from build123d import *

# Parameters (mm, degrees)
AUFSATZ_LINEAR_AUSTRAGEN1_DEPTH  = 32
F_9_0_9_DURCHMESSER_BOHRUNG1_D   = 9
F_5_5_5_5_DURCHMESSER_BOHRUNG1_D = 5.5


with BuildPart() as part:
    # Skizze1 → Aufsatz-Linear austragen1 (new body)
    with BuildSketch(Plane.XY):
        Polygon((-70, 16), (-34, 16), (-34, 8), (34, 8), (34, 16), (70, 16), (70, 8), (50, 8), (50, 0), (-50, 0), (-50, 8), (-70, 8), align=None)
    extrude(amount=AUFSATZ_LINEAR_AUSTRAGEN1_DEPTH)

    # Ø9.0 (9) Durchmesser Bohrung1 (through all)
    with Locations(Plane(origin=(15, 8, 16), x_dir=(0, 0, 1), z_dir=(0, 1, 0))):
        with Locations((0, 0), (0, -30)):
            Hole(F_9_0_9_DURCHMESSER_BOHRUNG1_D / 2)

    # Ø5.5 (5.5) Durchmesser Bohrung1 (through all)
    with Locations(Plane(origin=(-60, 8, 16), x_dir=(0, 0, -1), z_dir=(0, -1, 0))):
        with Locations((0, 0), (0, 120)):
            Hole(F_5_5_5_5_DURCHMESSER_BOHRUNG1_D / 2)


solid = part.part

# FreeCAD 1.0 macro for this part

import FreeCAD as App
import Part
import Sketcher
from FreeCAD import Vector

doc = App.newDocument("Part")
body = doc.addObject("PartDesign::Body", "Body")

# Sketch on XY plane
sketch1 = doc.addObject("Sketcher::SketchObject", "Sketch")
body.addObject(sketch1)
sketch1.AttachmentSupport = (doc.XY_Plane, [""])
sketch1.MapMode = "FlatFace"
sketch1.addGeometry([
    Part.LineSegment(Vector(-34, 16, 0), Vector(-70, 16, 0)),  # 0
    Part.LineSegment(Vector(-70, 16, 0), Vector(-70, 8, 0)),  # 1
    Part.LineSegment(Vector(-70, 8, 0), Vector(-50, 8, 0)),  # 2
    Part.LineSegment(Vector(-50, 8, 0), Vector(-50, 0, 0)),  # 3
    Part.LineSegment(Vector(-50, 0, 0), Vector(50, 0, 0)),  # 4
    Part.LineSegment(Vector(50, 0, 0), Vector(50, 8, 0)),  # 5
    Part.LineSegment(Vector(50, 8, 0), Vector(70, 8, 0)),  # 6
    Part.LineSegment(Vector(70, 8, 0), Vector(70, 16, 0)),  # 7
    Part.LineSegment(Vector(70, 16, 0), Vector(34, 16, 0)),  # 8
    Part.LineSegment(Vector(34, 16, 0), Vector(34, 8, 0)),  # 9
    Part.LineSegment(Vector(34, 8, 0), Vector(-34, 8, 0)),  # 10
    Part.LineSegment(Vector(-34, 8, 0), Vector(-34, 16, 0)),  # 11
], False)
sketch1.addConstraint([
    Sketcher.Constraint("Coincident", 0, 2, 1, 1),
    Sketcher.Constraint("Coincident", 1, 2, 2, 1),
    Sketcher.Constraint("Coincident", 2, 2, 3, 1),
    Sketcher.Constraint("Coincident", 3, 2, 4, 1),
    Sketcher.Constraint("Coincident", 4, 2, 5, 1),
    Sketcher.Constraint("Coincident", 5, 2, 6, 1),
    Sketcher.Constraint("Coincident", 6, 2, 7, 1),
    Sketcher.Constraint("Coincident", 7, 2, 8, 1),
    Sketcher.Constraint("Coincident", 8, 2, 9, 1),
    Sketcher.Constraint("Coincident", 9, 2, 10, 1),
    Sketcher.Constraint("Coincident", 10, 2, 11, 1),
    Sketcher.Constraint("Coincident", 11, 2, 0, 1),
    Sketcher.Constraint("Horizontal", 0),
    Sketcher.Constraint("Vertical", 1),
    Sketcher.Constraint("Horizontal", 2),
    Sketcher.Constraint("Vertical", 3),
    Sketcher.Constraint("Horizontal", 4),
    Sketcher.Constraint("Vertical", 5),
    Sketcher.Constraint("Horizontal", 6),
    Sketcher.Constraint("Vertical", 7),
    Sketcher.Constraint("Horizontal", 8),
    Sketcher.Constraint("Vertical", 9),
    Sketcher.Constraint("Horizontal", 10),
    Sketcher.Constraint("Vertical", 11),
    Sketcher.Constraint("Symmetric", 3, 2, 4, 2, -1, 1),
    Sketcher.Constraint("Symmetric", 1, 2, 6, 2, -2),
    Sketcher.Constraint("Symmetric", 8, 2, 11, 2, -2),
    Sketcher.Constraint("Horizontal", 6, 2, 9, 2),
    Sketcher.Constraint("Equal", 1, 3),
    Sketcher.Constraint("DistanceX", 0, 2, 0, 1, 36.0),
    Sketcher.Constraint("DistanceX", 2, 1, 2, 2, 20.0),
    Sketcher.Constraint("DistanceX", 4, 1, 4, 2, 100.0),
    Sketcher.Constraint("DistanceY", 1, 2, 1, 1, 8.0),
])
pad1 = doc.addObject("PartDesign::Pad", "Pad")
body.addObject(pad1)
pad1.Profile = sketch1
pad1.Length = 32

# Sketch on XZ plane
sketch2 = doc.addObject("Sketcher::SketchObject", "Sketch001")
body.addObject(sketch2)
sketch2.AttachmentSupport = (doc.XZ_Plane, [""])
sketch2.MapMode = "FlatFace"
sketch2.AttachmentOffset = App.Placement(Vector(0, 0, -8), App.Rotation())
sketch2.addGeometry([
    Part.Circle(Vector(15, 16, 0), Vector(0, 0, 1), 4.5),
    Part.Circle(Vector(-15, 16, 0), Vector(0, 0, 1), 4.5),
], False)
sketch2.addConstraint([
    Sketcher.Constraint("Equal", 0, 1),
    Sketcher.Constraint("Symmetric", 0, 3, 1, 3, -2),
    Sketcher.Constraint("Diameter", 0, 9.0),
    Sketcher.Constraint("DistanceX", -1, 1, 0, 3, 15.0),
    Sketcher.Constraint("DistanceY", -1, 1, 0, 3, 16.0),
])
doc.recompute()
hole = doc.addObject("PartDesign::Hole", "Hole")
body.addObject(hole)
hole.Profile = sketch2
hole.ThreadType = "None"
hole.Diameter = 9
hole.DepthType = "ThroughAll"
hole.Reversed = True

# Sketch on XZ plane
sketch3 = doc.addObject("Sketcher::SketchObject", "Sketch002")
body.addObject(sketch3)
sketch3.AttachmentSupport = (doc.XZ_Plane, [""])
sketch3.MapMode = "FlatFace"
sketch3.AttachmentOffset = App.Placement(Vector(0, 0, -8), App.Rotation())
sketch3.addGeometry([
    Part.Circle(Vector(-60, 16, 0), Vector(0, 0, 1), 2.75),
    Part.Circle(Vector(60, 16, 0), Vector(0, 0, 1), 2.75),
], False)
sketch3.addConstraint([
    Sketcher.Constraint("Equal", 0, 1),
    Sketcher.Constraint("Symmetric", 0, 3, 1, 3, -2),
    Sketcher.Constraint("Diameter", 0, 5.5),
    Sketcher.Constraint("DistanceX", 0, 3, -1, 1, 60.0),
    Sketcher.Constraint("DistanceY", -1, 1, 0, 3, 16.0),
])
doc.recompute()
hole2 = doc.addObject("PartDesign::Hole", "Hole001")
body.addObject(hole2)
hole2.Profile = sketch3
hole2.ThreadType = "None"
hole2.Diameter = 5.5
hole2.DepthType = "ThroughAll"

doc.recompute()
